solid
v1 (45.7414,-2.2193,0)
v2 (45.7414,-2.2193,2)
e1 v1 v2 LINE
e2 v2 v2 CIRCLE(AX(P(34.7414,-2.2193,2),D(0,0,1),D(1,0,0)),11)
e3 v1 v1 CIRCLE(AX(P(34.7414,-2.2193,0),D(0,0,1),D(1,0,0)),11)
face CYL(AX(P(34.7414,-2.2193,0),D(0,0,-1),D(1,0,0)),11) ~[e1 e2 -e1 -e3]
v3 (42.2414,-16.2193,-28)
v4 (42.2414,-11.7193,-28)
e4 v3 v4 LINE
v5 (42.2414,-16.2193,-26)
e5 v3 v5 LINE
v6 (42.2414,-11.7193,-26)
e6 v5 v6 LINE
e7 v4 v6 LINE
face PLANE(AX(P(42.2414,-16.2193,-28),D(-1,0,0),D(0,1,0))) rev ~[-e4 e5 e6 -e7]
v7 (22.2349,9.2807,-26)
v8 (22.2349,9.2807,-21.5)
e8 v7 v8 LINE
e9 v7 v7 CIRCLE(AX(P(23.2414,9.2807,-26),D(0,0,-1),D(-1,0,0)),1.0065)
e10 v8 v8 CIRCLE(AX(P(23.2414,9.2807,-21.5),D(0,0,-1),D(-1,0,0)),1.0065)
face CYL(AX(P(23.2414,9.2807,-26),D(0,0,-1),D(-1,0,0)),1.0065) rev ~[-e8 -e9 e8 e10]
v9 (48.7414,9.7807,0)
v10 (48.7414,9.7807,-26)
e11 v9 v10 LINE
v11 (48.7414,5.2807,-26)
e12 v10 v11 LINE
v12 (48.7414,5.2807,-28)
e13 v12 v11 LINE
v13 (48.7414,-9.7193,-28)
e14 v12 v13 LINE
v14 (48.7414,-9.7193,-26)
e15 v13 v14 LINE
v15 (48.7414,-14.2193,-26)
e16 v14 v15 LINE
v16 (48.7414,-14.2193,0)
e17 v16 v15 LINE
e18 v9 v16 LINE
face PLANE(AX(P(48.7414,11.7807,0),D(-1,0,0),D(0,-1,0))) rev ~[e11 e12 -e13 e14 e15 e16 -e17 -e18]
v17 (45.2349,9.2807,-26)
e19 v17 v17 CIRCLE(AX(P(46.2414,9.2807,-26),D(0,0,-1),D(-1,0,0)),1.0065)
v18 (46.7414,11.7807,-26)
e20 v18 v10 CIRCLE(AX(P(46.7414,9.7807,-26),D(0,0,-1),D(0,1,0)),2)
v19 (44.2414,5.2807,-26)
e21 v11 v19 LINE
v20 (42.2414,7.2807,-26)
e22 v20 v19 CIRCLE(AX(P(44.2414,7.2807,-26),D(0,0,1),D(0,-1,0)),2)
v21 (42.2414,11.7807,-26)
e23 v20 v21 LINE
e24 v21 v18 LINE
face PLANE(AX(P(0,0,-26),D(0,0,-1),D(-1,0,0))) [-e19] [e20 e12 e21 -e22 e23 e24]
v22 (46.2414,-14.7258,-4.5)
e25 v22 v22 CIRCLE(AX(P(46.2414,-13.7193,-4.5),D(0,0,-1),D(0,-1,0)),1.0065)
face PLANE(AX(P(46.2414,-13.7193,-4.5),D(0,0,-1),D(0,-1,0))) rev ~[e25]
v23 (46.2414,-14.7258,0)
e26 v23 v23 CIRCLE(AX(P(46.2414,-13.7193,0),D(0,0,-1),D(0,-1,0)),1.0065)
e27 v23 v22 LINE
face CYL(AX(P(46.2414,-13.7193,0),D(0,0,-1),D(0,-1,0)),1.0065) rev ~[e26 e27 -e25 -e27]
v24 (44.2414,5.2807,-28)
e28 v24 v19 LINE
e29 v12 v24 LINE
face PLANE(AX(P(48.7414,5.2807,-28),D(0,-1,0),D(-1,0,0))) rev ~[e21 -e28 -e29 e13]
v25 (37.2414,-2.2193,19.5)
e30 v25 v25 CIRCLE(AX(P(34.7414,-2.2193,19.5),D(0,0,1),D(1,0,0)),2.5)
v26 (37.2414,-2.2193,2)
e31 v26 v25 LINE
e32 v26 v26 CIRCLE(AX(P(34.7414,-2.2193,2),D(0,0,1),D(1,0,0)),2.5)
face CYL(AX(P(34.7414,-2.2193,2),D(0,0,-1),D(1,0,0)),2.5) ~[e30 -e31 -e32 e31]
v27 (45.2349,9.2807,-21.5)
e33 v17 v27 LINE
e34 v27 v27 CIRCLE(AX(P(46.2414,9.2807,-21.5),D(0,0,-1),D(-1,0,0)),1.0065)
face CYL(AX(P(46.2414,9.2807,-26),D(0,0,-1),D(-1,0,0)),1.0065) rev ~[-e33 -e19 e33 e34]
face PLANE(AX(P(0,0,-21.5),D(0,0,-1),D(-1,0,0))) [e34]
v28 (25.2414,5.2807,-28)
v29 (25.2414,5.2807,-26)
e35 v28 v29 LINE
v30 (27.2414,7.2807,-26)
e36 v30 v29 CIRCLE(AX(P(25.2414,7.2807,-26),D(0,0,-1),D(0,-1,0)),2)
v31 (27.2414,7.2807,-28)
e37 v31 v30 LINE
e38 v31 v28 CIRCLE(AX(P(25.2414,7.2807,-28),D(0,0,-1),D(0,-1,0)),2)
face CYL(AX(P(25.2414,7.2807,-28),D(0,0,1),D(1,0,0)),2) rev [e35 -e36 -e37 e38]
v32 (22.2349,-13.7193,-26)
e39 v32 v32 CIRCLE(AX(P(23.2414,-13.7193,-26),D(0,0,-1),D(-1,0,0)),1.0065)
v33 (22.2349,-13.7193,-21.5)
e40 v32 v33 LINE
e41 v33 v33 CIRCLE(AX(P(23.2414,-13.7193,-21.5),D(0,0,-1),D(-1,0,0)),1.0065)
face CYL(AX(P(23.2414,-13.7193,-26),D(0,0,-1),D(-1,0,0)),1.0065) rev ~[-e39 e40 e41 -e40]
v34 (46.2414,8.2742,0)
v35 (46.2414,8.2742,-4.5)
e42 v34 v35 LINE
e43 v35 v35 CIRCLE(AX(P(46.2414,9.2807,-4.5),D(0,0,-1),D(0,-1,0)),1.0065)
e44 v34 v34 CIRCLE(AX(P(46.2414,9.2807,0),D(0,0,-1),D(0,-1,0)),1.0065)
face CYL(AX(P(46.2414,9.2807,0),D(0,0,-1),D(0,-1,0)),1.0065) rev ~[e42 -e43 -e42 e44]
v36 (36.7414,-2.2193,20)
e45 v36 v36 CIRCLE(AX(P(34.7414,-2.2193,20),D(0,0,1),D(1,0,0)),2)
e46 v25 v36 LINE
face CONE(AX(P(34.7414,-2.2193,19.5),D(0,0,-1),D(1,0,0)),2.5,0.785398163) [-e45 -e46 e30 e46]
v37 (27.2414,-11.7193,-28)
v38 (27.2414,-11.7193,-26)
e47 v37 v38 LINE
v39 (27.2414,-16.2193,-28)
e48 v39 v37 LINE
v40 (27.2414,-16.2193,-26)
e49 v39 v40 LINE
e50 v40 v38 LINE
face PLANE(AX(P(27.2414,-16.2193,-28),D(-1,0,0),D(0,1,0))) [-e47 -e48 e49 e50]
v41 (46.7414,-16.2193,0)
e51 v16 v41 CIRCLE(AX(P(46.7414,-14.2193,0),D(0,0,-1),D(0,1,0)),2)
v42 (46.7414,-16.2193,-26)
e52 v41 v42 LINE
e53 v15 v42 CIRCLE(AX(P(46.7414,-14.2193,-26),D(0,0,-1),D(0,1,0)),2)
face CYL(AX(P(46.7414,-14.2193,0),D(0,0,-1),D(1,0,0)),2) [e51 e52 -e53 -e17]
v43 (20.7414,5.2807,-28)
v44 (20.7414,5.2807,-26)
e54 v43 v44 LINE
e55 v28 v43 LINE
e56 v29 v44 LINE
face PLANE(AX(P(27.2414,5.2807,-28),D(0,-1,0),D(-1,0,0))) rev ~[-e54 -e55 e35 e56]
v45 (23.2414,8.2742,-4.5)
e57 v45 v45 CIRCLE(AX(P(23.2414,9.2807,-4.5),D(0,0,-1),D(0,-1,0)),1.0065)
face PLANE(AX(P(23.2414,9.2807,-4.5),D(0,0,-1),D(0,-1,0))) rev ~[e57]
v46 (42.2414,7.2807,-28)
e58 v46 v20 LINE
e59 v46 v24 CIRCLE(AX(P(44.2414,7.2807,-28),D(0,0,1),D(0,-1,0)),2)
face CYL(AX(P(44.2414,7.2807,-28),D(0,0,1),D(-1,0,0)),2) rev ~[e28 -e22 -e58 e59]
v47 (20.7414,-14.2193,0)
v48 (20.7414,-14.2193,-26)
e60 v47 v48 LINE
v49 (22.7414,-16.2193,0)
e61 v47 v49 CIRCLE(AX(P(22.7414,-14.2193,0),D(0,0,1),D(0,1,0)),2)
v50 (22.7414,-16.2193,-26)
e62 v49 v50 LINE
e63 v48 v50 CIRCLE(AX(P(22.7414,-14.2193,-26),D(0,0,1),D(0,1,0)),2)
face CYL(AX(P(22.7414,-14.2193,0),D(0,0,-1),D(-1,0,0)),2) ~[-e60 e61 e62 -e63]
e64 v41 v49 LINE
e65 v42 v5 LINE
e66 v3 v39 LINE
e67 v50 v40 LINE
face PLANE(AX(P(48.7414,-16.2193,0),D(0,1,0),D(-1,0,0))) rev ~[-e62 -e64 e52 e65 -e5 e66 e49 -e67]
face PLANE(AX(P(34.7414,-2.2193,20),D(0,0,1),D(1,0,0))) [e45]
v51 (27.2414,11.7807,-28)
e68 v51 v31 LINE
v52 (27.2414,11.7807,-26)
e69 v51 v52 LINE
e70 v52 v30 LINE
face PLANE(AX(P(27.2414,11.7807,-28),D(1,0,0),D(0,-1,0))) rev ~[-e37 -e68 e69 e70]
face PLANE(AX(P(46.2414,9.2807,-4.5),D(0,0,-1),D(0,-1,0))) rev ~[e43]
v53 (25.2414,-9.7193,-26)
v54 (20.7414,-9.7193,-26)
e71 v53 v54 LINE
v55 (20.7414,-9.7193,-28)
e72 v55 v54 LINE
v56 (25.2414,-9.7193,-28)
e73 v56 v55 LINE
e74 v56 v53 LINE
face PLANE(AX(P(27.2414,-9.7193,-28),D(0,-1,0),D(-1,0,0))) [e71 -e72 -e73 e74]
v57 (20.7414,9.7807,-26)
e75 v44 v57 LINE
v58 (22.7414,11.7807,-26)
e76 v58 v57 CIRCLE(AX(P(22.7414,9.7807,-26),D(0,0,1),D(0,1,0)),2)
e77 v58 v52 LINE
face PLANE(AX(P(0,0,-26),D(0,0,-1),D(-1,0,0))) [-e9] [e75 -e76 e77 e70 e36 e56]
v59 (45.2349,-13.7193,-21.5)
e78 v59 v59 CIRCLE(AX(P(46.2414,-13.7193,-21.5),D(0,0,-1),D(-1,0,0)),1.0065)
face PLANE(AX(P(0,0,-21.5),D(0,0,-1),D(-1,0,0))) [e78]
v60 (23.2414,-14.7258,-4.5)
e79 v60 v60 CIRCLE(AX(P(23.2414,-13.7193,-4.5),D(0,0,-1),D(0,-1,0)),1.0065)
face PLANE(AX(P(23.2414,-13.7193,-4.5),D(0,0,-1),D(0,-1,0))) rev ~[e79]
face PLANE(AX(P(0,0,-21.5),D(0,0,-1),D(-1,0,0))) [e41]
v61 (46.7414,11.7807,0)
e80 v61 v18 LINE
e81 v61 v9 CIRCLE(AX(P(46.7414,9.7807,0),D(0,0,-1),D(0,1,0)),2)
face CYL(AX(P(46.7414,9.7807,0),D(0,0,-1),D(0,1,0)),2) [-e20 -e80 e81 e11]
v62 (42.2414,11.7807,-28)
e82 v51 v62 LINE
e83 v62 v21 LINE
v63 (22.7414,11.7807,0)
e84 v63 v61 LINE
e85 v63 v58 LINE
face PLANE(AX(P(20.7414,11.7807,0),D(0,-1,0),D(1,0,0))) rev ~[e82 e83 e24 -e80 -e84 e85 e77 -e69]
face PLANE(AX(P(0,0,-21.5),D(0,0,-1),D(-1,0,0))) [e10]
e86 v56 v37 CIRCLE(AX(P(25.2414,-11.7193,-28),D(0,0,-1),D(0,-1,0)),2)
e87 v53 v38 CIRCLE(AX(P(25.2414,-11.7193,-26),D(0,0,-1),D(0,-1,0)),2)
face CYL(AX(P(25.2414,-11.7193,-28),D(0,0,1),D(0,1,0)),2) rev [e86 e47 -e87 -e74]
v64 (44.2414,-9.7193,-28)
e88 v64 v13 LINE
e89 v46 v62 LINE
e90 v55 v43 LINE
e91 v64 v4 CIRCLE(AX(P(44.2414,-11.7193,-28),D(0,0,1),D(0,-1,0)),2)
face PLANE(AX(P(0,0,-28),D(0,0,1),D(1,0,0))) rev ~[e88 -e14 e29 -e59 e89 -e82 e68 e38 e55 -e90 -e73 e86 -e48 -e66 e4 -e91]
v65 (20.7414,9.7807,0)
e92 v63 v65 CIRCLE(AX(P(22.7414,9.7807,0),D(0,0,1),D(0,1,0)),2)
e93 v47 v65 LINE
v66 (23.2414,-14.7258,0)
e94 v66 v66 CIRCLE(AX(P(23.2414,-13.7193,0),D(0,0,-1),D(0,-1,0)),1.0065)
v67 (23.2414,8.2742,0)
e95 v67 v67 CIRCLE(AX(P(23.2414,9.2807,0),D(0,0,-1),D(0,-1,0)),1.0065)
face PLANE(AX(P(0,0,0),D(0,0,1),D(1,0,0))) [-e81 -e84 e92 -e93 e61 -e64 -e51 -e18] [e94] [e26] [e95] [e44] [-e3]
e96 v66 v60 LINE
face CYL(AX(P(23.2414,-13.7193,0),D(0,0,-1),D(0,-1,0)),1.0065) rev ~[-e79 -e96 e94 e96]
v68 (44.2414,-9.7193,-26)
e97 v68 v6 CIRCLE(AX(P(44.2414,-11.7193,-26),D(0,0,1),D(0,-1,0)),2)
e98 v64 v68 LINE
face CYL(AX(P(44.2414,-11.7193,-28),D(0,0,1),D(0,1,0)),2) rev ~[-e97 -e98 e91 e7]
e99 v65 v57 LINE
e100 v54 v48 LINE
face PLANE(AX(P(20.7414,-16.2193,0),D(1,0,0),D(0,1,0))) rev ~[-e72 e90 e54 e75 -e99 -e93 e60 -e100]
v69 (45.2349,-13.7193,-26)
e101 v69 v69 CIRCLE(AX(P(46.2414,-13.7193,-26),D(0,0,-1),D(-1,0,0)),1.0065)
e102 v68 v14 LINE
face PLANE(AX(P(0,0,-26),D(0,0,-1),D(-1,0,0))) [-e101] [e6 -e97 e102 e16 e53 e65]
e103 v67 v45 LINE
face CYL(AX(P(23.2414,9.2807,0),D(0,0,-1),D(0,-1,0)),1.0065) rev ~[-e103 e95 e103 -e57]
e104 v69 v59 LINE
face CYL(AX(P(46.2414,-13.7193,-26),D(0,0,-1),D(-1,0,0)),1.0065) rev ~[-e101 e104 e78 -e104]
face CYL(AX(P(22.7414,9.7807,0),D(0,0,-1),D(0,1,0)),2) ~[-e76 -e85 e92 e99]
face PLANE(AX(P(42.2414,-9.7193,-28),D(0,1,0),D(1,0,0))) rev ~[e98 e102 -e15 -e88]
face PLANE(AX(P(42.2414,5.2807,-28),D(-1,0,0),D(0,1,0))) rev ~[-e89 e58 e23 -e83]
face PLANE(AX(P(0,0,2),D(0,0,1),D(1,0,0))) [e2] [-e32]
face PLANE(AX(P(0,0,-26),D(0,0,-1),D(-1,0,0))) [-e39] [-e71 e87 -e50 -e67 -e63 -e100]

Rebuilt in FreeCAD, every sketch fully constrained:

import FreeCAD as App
import Part
import Sketcher

V = App.Vector
Q = App.Units.Quantity


def edges_at(feature, points):
    """Names of the edges that pass closest to the given points."""
    edges = feature.Shape.Edges
    near = lambda p: min(range(len(edges)), key=lambda i: edges[i].distToShape(Part.Vertex(*p))[0])
    return sorted({f"Edge{near(p) + 1}" for p in points})

doc = App.newDocument("Part")
body = doc.addObject("PartDesign::Body", "Body")

# Sketch on XY plane
sketch1 = doc.addObject("Sketcher::SketchObject", "Sketch")
body.addObject(sketch1)
sketch1.AttachmentSupport = (doc.XY_Plane, [""])
sketch1.MapMode = "FlatFace"
sketch1.addGeometry([
    Part.LineSegment(V(49, 12, 0), V(21, 12, 0)),
    Part.LineSegment(V(21, 12, 0), V(21, -16, 0)),
    Part.LineSegment(V(21, -16, 0), V(49, -16, 0)),
    Part.LineSegment(V(49, -16, 0), V(49, 12, 0)),
], False)
sketch1.addConstraint([
    Sketcher.Constraint("Coincident", 0, 2, 1, 1),
    Sketcher.Constraint("Coincident", 1, 2, 2, 1),
    Sketcher.Constraint("Coincident", 2, 2, 3, 1),
    Sketcher.Constraint("Coincident", 3, 2, 0, 1),
    Sketcher.Constraint("Horizontal", 0),
    Sketcher.Constraint("Vertical", 1),
    Sketcher.Constraint("Horizontal", 2),
    Sketcher.Constraint("Vertical", 3),
    Sketcher.Constraint("Equal", 2, 1),
    Sketcher.Constraint("DistanceX", 0, 2, 0, 1, Q("28 mm")),
    Sketcher.Constraint("DistanceX", -1, 1, 0, 2, Q("20.7414 mm")),
    Sketcher.Constraint("DistanceY", -1, 1, 0, 2, Q("11.7807 mm")),
])
pad1 = doc.addObject("PartDesign::Pad", "Pad")
body.addObject(pad1)
pad1.Profile = sketch1
pad1.Length = 28
pad1.Reversed = True

# Sketch on XY plane
sketch2 = doc.addObject("Sketcher::SketchObject", "Sketch001")
body.addObject(sketch2)
sketch2.AttachmentSupport = (doc.XY_Plane, [""])
sketch2.MapMode = "FlatFace"
sketch2.addGeometry([
    Part.Circle(V(23.2, 9.3, 0), V(0, 0, 1), 1),
    Part.Circle(V(46.2, 9.3, 0), V(0, 0, 1), 1),
    Part.Circle(V(46.2, -13.7, 0), V(0, 0, 1), 1),
    Part.Circle(V(23.2, -13.7, 0), V(0, 0, 1), 1),
], False)
sketch2.addConstraint([
    Sketcher.Constraint("Equal", 0, 1),
    Sketcher.Constraint("Equal", 1, 2),
    Sketcher.Constraint("Equal", 2, 3),
    Sketcher.Constraint("Horizontal", 0, 3, 1, 3),
    Sketcher.Constraint("Horizontal", 2, 3, 3, 3),
    Sketcher.Constraint("Vertical", 1, 3, 2, 3),
    Sketcher.Constraint("Vertical", 0, 3, 3, 3),
    Sketcher.Constraint("Diameter", 0, Q("2.013 mm")),
    Sketcher.Constraint("DistanceX", 0, 3, 1, 3, Q("23 mm")),
    Sketcher.Constraint("DistanceY", 2, 3, 1, 3, Q("23 mm")),
    Sketcher.Constraint("DistanceX", -1, 1, 0, 3, Q("23.2414 mm")),
    Sketcher.Constraint("DistanceY", -1, 1, 0, 3, Q("9.2807 mm")),
])
doc.recompute()
hole = doc.addObject("PartDesign::Hole", "Hole")
body.addObject(hole)
hole.Profile = sketch2
hole.ThreadType = "None"
hole.Diameter = 2.013
hole.DepthType = "Dimension"
hole.Depth = 4.5
hole.DrillPoint = "Flat"

# Sketch on XY plane
sketch3 = doc.addObject("Sketcher::SketchObject", "Sketch002")
body.addObject(sketch3)
sketch3.AttachmentSupport = (doc.XY_Plane, [""])
sketch3.MapMode = "FlatFace"
sketch3.addGeometry(Part.Circle(V(35, -2, 0), V(0, 0, 1), 11), False)
sketch3.addConstraint([
    Sketcher.Constraint("Diameter", 0, Q("22 mm")),
    Sketcher.Constraint("DistanceX", -1, 1, 0, 3, Q("34.7414 mm")),
    Sketcher.Constraint("DistanceY", 0, 3, -1, 1, Q("2.2193 mm")),
])
pad2 = doc.addObject("PartDesign::Pad", "Pad001")
body.addObject(pad2)
pad2.Profile = sketch3
pad2.Length = 2

# Sketch on XY plane
sketch4 = doc.addObject("Sketcher::SketchObject", "Sketch003")
body.addObject(sketch4)
sketch4.AttachmentSupport = (doc.XY_Plane, [""])
sketch4.MapMode = "FlatFace"
sketch4.AttachmentOffset = App.Placement(V(0, 0, 2), App.Rotation())
sketch4.addGeometry(Part.Circle(V(34.7, -2.2, 0), V(0, 0, 1), 2.5), False)
sketch4.addConstraint([
    Sketcher.Constraint("Diameter", 0, Q("5 mm")),
    Sketcher.Constraint("DistanceX", -1, 1, 0, 3, Q("34.7414 mm")),
    Sketcher.Constraint("DistanceY", 0, 3, -1, 1, Q("2.2193 mm")),
])
pad3 = doc.addObject("PartDesign::Pad", "Pad002")
body.addObject(pad3)
pad3.Profile = sketch4
pad3.Length = 18
doc.recompute()

chamfer = doc.addObject("PartDesign::Chamfer", "Chamfer")
body.addObject(chamfer)
chamfer.Base = (pad3, edges_at(pad3, [(32.241, -2.219, 20)]))
chamfer.Size = 0.5

# Sketch on XY plane
sketch5 = doc.addObject("Sketcher::SketchObject", "Sketch004")
body.addObject(sketch5)
sketch5.AttachmentSupport = (doc.XY_Plane, [""])
sketch5.MapMode = "FlatFace"
sketch5.AttachmentOffset = App.Placement(V(0, 0, -28), App.Rotation())
sketch5.addGeometry([
    Part.LineSegment(V(21, 5, 0), V(21, 12, 0)),  # 0
    Part.LineSegment(V(21, 12, 0), V(27, 12, 0)),  # 1
    Part.LineSegment(V(27, 12, 0), V(27, 5, 0)),  # 2
    Part.LineSegment(V(27, 5, 0), V(21, 5, 0)),  # 3
    Part.LineSegment(V(42, 5, 0), V(42, 12, 0)),  # 4
    Part.LineSegment(V(42, 12, 0), V(49, 12, 0)),  # 5
    Part.LineSegment(V(49, 12, 0), V(49, 5, 0)),  # 6
    Part.LineSegment(V(49, 5, 0), V(42, 5, 0)),  # 7
    Part.LineSegment(V(21, -16, 0), V(21, -10, 0)),  # 8
    Part.LineSegment(V(21, -10, 0), V(27, -10, 0)),  # 9
    Part.LineSegment(V(27, -10, 0), V(27, -16, 0)),  # 10
    Part.LineSegment(V(27, -16, 0), V(21, -16, 0)),  # 11
    Part.LineSegment(V(42, -10, 0), V(49, -10, 0)),  # 12
    Part.LineSegment(V(49, -10, 0), V(49, -16, 0)),  # 13
    Part.LineSegment(V(49, -16, 0), V(42, -16, 0)),  # 14
    Part.LineSegment(V(42, -16, 0), V(42, -10, 0)),  # 15
], False)
sketch5.addConstraint([
    Sketcher.Constraint("Coincident", 0, 2, 1, 1),
    Sketcher.Constraint("Coincident", 1, 2, 2, 1),
    Sketcher.Constraint("Coincident", 2, 2, 3, 1),
    Sketcher.Constraint("Coincident", 3, 2, 0, 1),
    Sketcher.Constraint("Coincident", 4, 2, 5, 1),
    Sketcher.Constraint("Coincident", 5, 2, 6, 1),
    Sketcher.Constraint("Coincident", 6, 2, 7, 1),
    Sketcher.Constraint("Coincident", 7, 2, 4, 1),
    Sketcher.Constraint("Coincident", 8, 2, 9, 1),
    Sketcher.Constraint("Coincident", 9, 2, 10, 1),
    Sketcher.Constraint("Coincident", 10, 2, 11, 1),
    Sketcher.Constraint("Coincident", 11, 2, 8, 1),
    Sketcher.Constraint("Coincident", 12, 2, 13, 1),
    Sketcher.Constraint("Coincident", 13, 2, 14, 1),
    Sketcher.Constraint("Coincident", 14, 2, 15, 1),
    Sketcher.Constraint("Coincident", 15, 2, 12, 1),
    Sketcher.Constraint("Vertical", 0),
    Sketcher.Constraint("Horizontal", 1),
    Sketcher.Constraint("Vertical", 2),
    Sketcher.Constraint("Horizontal", 3),
    Sketcher.Constraint("Vertical", 4),
    Sketcher.Constraint("Horizontal", 5),
    Sketcher.Constraint("Vertical", 6),
    Sketcher.Constraint("Horizontal", 7),
    Sketcher.Constraint("Vertical", 8),
    Sketcher.Constraint("Horizontal", 9),
    Sketcher.Constraint("Vertical", 10),
    Sketcher.Constraint("Horizontal", 11),
    Sketcher.Constraint("Horizontal", 12),
    Sketcher.Constraint("Vertical", 13),
    Sketcher.Constraint("Horizontal", 14),
    Sketcher.Constraint("Vertical", 15),
    Sketcher.Constraint("Horizontal", 1, 2, 4, 2),
    Sketcher.Constraint("Horizontal", 3, 2, 6, 2),
    Sketcher.Constraint("Horizontal", 9, 2, 12, 2),
    Sketcher.Constraint("Horizontal", 11, 2, 13, 2),
    Sketcher.Constraint("Vertical", 3, 2, 8, 2),
    Sketcher.Constraint("Vertical", 2, 2, 9, 2),
    Sketcher.Constraint("Vertical", 6, 2, 12, 2),
    Sketcher.Constraint("Vertical", 7, 2, 14, 2),
    Sketcher.Constraint("Equal", 3, 5),
    Sketcher.Constraint("Equal", 14, 0),
    Sketcher.Constraint("Equal", 6, 8),
    Sketcher.Constraint("DistanceX", 1, 1, 1, 2, Q("6.5 mm")),
    Sketcher.Constraint("DistanceX", 1, 2, 4, 2, Q("15 mm")),
    Sketcher.Constraint("DistanceY", 8, 2, 3, 2, Q("15 mm")),
    Sketcher.Constraint("DistanceX", -1, 1, 0, 2, Q("20.7414 mm")),
    Sketcher.Constraint("DistanceY", -1, 1, 0, 2, Q("11.7807 mm")),
])
pocket1 = doc.addObject("PartDesign::Pocket", "Pocket")
body.addObject(pocket1)
pocket1.Profile = sketch5
pocket1.Length = 2
pocket1.Reversed = True

# Sketch on XY plane
sketch6 = doc.addObject("Sketcher::SketchObject", "Sketch005")
body.addObject(sketch6)
sketch6.AttachmentSupport = (doc.XY_Plane, [""])
sketch6.MapMode = "FlatFace"
sketch6.AttachmentOffset = App.Placement(V(0, 0, -26), App.Rotation())
sketch6.addGeometry([
    Part.Circle(V(23.2, -13.7, 0), V(0, 0, 1), 1),
    Part.Circle(V(23.2, 9.3, 0), V(0, 0, 1), 1),
    Part.Circle(V(46.2, -13.7, 0), V(0, 0, 1), 1),
    Part.Circle(V(46.2, 9.3, 0), V(0, 0, 1), 1),
], False)
sketch6.addConstraint([
    Sketcher.Constraint("Equal", 0, 1),
    Sketcher.Constraint("Equal", 1, 2),
    Sketcher.Constraint("Equal", 2, 3),
    Sketcher.Constraint("Horizontal", 0, 3, 2, 3),
    Sketcher.Constraint("Horizontal", 1, 3, 3, 3),
    Sketcher.Constraint("Vertical", 0, 3, 1, 3),
    Sketcher.Constraint("Vertical", 2, 3, 3, 3),
    Sketcher.Constraint("Diameter", 0, Q("2.013 mm")),
    Sketcher.Constraint("DistanceY", 0, 3, 1, 3, Q("23 mm")),
    Sketcher.Constraint("DistanceX", 0, 3, 2, 3, Q("23 mm")),
    Sketcher.Constraint("DistanceX", -1, 1, 0, 3, Q("23.2414 mm")),
    Sketcher.Constraint("DistanceY", 0, 3, -1, 1, Q("13.7193 mm")),
])
pocket2 = doc.addObject("PartDesign::Pocket", "Pocket001")
body.addObject(pocket2)
pocket2.Profile = sketch6
pocket2.Length = 4.5
pocket2.Reversed = True
doc.recompute()

fillet = doc.addObject("PartDesign::Fillet", "Fillet")
body.addObject(fillet)
fillet.Base = (pocket2, edges_at(pocket2, [
    (20.741, 11.781, -13),
    (48.741, 11.781, -13),
    (20.741, -16.219, -13),
    (48.741, -16.219, -13),
    (27.241, -9.719, -27),
    (27.241, 5.281, -27),
    (42.241, 5.281, -27),
    (42.241, -9.719, -27),
]))
fillet.Radius = 2

doc.recompute()
